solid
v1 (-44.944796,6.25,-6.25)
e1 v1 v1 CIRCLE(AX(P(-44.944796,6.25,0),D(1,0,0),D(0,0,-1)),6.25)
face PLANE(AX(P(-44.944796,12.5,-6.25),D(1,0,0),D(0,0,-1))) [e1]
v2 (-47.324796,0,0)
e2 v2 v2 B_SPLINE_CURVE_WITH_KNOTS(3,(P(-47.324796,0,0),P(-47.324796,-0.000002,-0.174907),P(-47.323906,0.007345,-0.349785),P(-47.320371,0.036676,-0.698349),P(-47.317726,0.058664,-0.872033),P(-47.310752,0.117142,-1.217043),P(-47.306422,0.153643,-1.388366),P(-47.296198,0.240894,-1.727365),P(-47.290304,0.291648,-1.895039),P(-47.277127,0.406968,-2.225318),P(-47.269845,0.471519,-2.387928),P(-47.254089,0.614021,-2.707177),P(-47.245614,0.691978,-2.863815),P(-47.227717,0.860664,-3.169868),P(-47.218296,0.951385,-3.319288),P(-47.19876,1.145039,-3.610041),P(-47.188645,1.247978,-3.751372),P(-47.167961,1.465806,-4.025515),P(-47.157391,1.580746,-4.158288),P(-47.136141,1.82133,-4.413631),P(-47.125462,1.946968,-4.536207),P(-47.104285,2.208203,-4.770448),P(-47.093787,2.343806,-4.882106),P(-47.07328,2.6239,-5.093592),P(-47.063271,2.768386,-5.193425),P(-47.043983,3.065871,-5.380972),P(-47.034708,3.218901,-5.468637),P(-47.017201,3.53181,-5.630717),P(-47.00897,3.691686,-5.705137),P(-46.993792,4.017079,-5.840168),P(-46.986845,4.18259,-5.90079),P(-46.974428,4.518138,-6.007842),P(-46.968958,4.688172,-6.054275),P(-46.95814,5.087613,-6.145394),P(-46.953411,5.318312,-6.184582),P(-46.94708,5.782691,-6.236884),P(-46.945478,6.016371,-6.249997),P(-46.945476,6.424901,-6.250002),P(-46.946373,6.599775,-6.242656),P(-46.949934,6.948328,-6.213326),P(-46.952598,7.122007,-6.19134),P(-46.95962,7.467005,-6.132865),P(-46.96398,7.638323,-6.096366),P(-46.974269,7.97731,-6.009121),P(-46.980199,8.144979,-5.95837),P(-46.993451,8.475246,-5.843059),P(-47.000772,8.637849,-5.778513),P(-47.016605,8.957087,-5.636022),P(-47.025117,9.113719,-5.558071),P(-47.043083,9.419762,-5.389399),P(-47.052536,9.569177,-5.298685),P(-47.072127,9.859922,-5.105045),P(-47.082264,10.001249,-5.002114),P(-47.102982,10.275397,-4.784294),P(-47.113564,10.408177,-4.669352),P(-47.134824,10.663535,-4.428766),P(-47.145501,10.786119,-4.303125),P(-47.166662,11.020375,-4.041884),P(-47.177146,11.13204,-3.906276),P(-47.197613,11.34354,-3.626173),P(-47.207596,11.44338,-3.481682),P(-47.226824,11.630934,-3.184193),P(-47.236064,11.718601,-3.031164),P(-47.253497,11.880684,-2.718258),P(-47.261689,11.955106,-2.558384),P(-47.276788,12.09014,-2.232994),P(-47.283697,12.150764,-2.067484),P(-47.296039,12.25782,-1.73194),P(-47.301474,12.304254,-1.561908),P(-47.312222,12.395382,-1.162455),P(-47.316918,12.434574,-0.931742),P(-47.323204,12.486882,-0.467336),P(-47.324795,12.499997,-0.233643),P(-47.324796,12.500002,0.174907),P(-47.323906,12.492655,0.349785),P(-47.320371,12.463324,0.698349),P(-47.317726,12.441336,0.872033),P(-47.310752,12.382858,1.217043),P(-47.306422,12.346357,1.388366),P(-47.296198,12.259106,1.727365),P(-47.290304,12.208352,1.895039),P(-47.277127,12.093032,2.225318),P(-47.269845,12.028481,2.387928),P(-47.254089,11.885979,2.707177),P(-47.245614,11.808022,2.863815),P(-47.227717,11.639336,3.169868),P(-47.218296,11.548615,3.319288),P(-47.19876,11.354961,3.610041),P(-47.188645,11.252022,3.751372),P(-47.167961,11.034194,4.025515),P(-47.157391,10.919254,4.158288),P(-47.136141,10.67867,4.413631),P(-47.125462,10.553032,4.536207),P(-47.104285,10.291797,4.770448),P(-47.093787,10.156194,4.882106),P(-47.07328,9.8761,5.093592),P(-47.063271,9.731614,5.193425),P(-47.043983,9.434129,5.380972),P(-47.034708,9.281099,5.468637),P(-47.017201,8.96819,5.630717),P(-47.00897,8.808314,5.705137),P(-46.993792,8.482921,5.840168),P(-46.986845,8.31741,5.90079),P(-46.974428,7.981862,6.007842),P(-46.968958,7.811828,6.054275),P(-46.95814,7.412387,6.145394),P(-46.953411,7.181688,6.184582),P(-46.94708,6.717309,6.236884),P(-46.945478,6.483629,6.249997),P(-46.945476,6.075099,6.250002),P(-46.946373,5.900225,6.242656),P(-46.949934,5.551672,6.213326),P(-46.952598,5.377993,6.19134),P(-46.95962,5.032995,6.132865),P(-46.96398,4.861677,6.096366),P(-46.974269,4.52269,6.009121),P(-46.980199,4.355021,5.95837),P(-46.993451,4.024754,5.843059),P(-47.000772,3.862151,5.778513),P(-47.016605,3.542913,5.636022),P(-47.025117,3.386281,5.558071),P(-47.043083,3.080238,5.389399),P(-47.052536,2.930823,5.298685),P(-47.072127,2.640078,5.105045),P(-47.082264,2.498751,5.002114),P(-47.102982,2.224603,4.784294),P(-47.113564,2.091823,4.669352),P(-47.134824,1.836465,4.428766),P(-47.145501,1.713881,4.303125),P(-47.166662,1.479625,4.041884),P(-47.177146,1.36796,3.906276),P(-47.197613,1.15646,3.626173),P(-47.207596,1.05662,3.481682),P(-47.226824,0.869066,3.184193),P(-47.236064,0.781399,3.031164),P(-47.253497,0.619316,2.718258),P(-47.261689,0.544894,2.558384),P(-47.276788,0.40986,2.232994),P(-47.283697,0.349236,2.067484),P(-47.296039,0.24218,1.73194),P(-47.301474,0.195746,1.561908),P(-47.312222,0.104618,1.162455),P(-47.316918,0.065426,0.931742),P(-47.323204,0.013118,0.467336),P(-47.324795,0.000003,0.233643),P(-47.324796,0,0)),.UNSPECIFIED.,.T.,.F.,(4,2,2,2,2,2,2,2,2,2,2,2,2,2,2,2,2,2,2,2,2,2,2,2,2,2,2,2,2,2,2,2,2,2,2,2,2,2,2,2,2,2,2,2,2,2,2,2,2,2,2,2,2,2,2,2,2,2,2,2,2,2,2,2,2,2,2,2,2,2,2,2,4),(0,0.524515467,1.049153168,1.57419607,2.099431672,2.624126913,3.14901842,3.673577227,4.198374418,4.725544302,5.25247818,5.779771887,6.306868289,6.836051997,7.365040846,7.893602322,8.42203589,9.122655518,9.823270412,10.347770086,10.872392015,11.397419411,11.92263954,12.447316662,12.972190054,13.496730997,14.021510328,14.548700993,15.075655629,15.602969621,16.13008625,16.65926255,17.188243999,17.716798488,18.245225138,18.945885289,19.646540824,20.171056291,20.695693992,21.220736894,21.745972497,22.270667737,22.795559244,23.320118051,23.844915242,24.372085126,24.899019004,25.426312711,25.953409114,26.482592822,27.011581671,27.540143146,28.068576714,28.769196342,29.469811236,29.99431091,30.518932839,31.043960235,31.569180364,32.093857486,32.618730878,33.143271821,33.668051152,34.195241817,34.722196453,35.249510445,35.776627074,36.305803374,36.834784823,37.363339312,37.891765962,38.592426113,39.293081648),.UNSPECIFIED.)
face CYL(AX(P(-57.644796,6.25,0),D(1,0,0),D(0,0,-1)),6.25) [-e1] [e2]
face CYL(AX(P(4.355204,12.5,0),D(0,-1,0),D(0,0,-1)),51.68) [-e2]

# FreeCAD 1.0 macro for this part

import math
import FreeCAD as App
import Part
import Sketcher

doc = App.newDocument("Part")
params = doc.addObject("Spreadsheet::Sheet", "Params")
for row, (alias, value) in enumerate([
    ("sketch1_radius", "51.68 mm"),
    ("sketch1_height", "12.5 mm"),
    ("pad1_length", "12.5 mm"),
    ("sketch2_radius", "6.25 mm"),
    ("pocket1_length", "12.7 mm"),
], start=1):
    params.set(f"A{row}", alias)
    params.set(f"B{row}", "=" + value)
    params.setAlias(f"B{row}", alias)

body = doc.addObject("PartDesign::Body", "Body")

# Sketch on XZ plane
sketch1 = body.newObject("Sketcher::SketchObject", "Sketch")
sketch1.AttachmentSupport = (doc.getObject("XZ_Plane"), [""])
sketch1.MapMode = "FlatFace"
sketch1.addGeometry([
    Part.LineSegment(App.Vector(-44.9, -6.2, 0), App.Vector(-46.9, -6.2, 0)),
    Part.ArcOfCircle(Part.Circle(App.Vector(4.4, 0, 0), App.Vector(0, 0, 1), 51.7), math.radians(173.05), math.radians(186.95)),
    Part.LineSegment(App.Vector(-46.9, 6.2, 0), App.Vector(-44.9, 6.2, 0)),
    Part.LineSegment(App.Vector(-44.9, 6.2, 0), App.Vector(-44.9, -6.2, 0)),
], False)
sketch1.addConstraint([
    Sketcher.Constraint("Coincident", 0, 2, 1, 2),
    Sketcher.Constraint("Coincident", 1, 1, 2, 1),
    Sketcher.Constraint("Coincident", 2, 2, 3, 1),
    Sketcher.Constraint("Coincident", 3, 2, 0, 1),
    Sketcher.Constraint("Horizontal", 0),
    Sketcher.Constraint("Horizontal", 2),
    Sketcher.Constraint("Vertical", 3),
    Sketcher.Constraint("Symmetric", 0, 2, 1, 1, -1),
    Sketcher.Constraint("Radius", 1, 51.68),
    Sketcher.Constraint("DistanceY", 3, 2, 3, 1, 12.5),
    Sketcher.Constraint("DistanceX", 2, 2, 1, 3, 49.3),
    Sketcher.Constraint("DistanceX", -1, 1, 1, 3, 4.355204),
])
sketch1.setExpression("Constraints[8]", "Params.sketch1_radius")
sketch1.setExpression("Constraints[9]", "Params.sketch1_height")
pad1 = body.newObject("PartDesign::Pad", "Pad")
pad1.Profile = sketch1
pad1.setExpression("Length", "Params.pad1_length")
pad1.Reversed = True

# Sketch on YZ plane
sketch2 = body.newObject("Sketcher::SketchObject", "Sketch001")
sketch2.AttachmentSupport = (doc.getObject("YZ_Plane"), [""])
sketch2.MapMode = "FlatFace"
sketch2.AttachmentOffset = App.Placement(App.Vector(0, 0, -44.944796), App.Rotation())
sketch2.addGeometry([
    Part.LineSegment(App.Vector(12, 6, 0), App.Vector(6, 6, 0)),  # 0
    Part.ArcOfCircle(Part.Circle(App.Vector(6, 0, 0), App.Vector(0, 0, 1), 6), math.radians(0), math.radians(90)),  # 1
    Part.LineSegment(App.Vector(12, 0, 0), App.Vector(12, 6, 0)),  # 2
    Part.ArcOfCircle(Part.Circle(App.Vector(6, 0, 0), App.Vector(0, 0, 1), 6), math.radians(-90), math.radians(0)),  # 3
    Part.LineSegment(App.Vector(6, -6, 0), App.Vector(12, -6, 0)),  # 4
    Part.LineSegment(App.Vector(12, -6, 0), App.Vector(12, 0, 0)),  # 5
    Part.ArcOfCircle(Part.Circle(App.Vector(6, 0, 0), App.Vector(0, 0, 1), 6), math.radians(-180), math.radians(-90)),  # 6
    Part.LineSegment(App.Vector(0, 0, 0), App.Vector(0, -6, 0)),  # 7
    Part.LineSegment(App.Vector(0, -6, 0), App.Vector(6, -6, 0)),  # 8
    Part.LineSegment(App.Vector(6, 6, 0), App.Vector(0, 6, 0)),  # 9
    Part.LineSegment(App.Vector(0, 6, 0), App.Vector(0, 0, 0)),  # 10
    Part.ArcOfCircle(Part.Circle(App.Vector(6, 0, 0), App.Vector(0, 0, 1), 6), math.radians(90), math.radians(180)),  # 11
], False)
sketch2.addConstraint([
    Sketcher.Constraint("Tangent", 0, 2, 1, 2),
    Sketcher.Constraint("Tangent", 1, 1, 2, 1),
    Sketcher.Constraint("Coincident", 2, 2, 0, 1),
    Sketcher.Constraint("Tangent", 3, 1, 4, 1),
    Sketcher.Constraint("Coincident", 4, 2, 5, 1),
    Sketcher.Constraint("Tangent", 5, 2, 3, 2),
    Sketcher.Constraint("Tangent", 6, 1, 7, 1),
    Sketcher.Constraint("Coincident", 7, 2, 8, 1),
    Sketcher.Constraint("Tangent", 8, 2, 6, 2),
    Sketcher.Constraint("Coincident", 9, 2, 10, 1),
    Sketcher.Constraint("Tangent", 10, 2, 11, 2),
    Sketcher.Constraint("Tangent", 11, 1, 9, 1),
    Sketcher.Constraint("Horizontal", 0),
    Sketcher.Constraint("Vertical", 2),
    Sketcher.Constraint("Horizontal", 4),
    Sketcher.Constraint("Vertical", 5),
    Sketcher.Constraint("Vertical", 7),
    Sketcher.Constraint("Horizontal", 8),
    Sketcher.Constraint("Horizontal", 9),
    Sketcher.Constraint("Vertical", 10),
    Sketcher.Constraint("Coincident", 6, 1, -1, 1),
    Sketcher.Constraint("Coincident", 10, 2, -1, 1),
    Sketcher.Constraint("Coincident", 3, 3, 1, 3),
    Sketcher.Constraint("Coincident", 6, 3, 1, 3),
    Sketcher.Constraint("Coincident", 11, 1, 0, 2),
    Sketcher.Constraint("Equal", 1, 3),
    Sketcher.Constraint("Radius", 1, 6.25),
])
sketch2.setExpression("Constraints[26]", "Params.sketch2_radius")
pocket1 = body.newObject("PartDesign::Pocket", "Pocket")
pocket1.Profile = sketch2
pocket1.setExpression("Length", "Params.pocket1_length")

doc.recompute()
